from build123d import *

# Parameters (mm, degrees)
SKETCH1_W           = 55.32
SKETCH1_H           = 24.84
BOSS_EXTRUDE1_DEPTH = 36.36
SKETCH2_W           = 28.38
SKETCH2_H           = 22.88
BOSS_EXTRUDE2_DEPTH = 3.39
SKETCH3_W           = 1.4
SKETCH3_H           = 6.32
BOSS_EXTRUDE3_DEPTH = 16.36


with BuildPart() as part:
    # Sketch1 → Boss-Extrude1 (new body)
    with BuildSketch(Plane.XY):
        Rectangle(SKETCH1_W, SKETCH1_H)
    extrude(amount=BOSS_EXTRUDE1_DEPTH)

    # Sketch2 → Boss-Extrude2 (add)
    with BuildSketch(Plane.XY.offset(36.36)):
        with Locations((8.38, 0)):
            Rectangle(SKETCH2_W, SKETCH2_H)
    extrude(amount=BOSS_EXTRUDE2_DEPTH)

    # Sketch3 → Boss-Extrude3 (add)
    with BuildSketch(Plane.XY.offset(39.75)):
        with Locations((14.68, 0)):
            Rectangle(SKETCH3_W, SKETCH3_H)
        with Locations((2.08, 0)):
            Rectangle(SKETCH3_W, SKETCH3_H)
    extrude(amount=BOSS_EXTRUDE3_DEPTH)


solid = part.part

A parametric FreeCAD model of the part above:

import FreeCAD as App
import Part
import Sketcher
Q = App.Units.Quantity

doc = App.newDocument("Part")
body = doc.addObject("PartDesign::Body", "Body")

sketch1 = doc.addObject("Sketcher::SketchObject", "Sketch")
body.addObject(sketch1)
sketch1.AttachmentSupport = (doc.XY_Plane, [""])
sketch1.MapMode = "FlatFace"
sketch1.addGeometry([
    Part.LineSegment(App.Vector(-27.66, 12.42, 0), App.Vector(-27.66, -12.42, 0)),
    Part.LineSegment(App.Vector(-27.66, -12.42, 0), App.Vector(27.66, -12.42, 0)),
    Part.LineSegment(App.Vector(27.66, -12.42, 0), App.Vector(27.66, 12.42, 0)),
    Part.LineSegment(App.Vector(27.66, 12.42, 0), App.Vector(-27.66, 12.42, 0)),
], False)
sketch1.addConstraint([
    Sketcher.Constraint("Coincident", 0, 2, 1, 1),
    Sketcher.Constraint("Coincident", 1, 2, 2, 1),
    Sketcher.Constraint("Coincident", 2, 2, 3, 1),
    Sketcher.Constraint("Coincident", 3, 2, 0, 1),
    Sketcher.Constraint("Vertical", 0),
    Sketcher.Constraint("Horizontal", 1),
    Sketcher.Constraint("Vertical", 2),
    Sketcher.Constraint("Horizontal", 3),
    Sketcher.Constraint("Symmetric", 0, 2, 2, 2, -1, 1),
    Sketcher.Constraint("DistanceX", 1, 1, 1, 2, Q("55.32 mm")),
    Sketcher.Constraint("DistanceY", 0, 2, 0, 1, Q("24.84 mm")),
])
pad1 = doc.addObject("PartDesign::Pad", "Pad")
body.addObject(pad1)
pad1.Profile = sketch1
pad1.Length = 36.36

sketch2 = doc.addObject("Sketcher::SketchObject", "Sketch001")
body.addObject(sketch2)
sketch2.AttachmentSupport = (doc.XY_Plane, [""])
sketch2.MapMode = "FlatFace"
sketch2.AttachmentOffset = App.Placement(App.Vector(0, 0, 36.36), App.Rotation())
sketch2.addGeometry([
    Part.LineSegment(App.Vector(-5.81, 11.44, 0), App.Vector(-5.81, -11.44, 0)),
    Part.LineSegment(App.Vector(-5.81, -11.44, 0), App.Vector(22.57, -11.44, 0)),
    Part.LineSegment(App.Vector(22.57, -11.44, 0), App.Vector(22.57, 11.44, 0)),
    Part.LineSegment(App.Vector(22.57, 11.44, 0), App.Vector(-5.81, 11.44, 0)),
], False)
sketch2.addConstraint([
    Sketcher.Constraint("Coincident", 0, 2, 1, 1),
    Sketcher.Constraint("Coincident", 1, 2, 2, 1),
    Sketcher.Constraint("Coincident", 2, 2, 3, 1),
    Sketcher.Constraint("Coincident", 3, 2, 0, 1),
    Sketcher.Constraint("Vertical", 0),
    Sketcher.Constraint("Horizontal", 1),
    Sketcher.Constraint("Vertical", 2),
    Sketcher.Constraint("Horizontal", 3),
    Sketcher.Constraint("DistanceX", 1, 1, 1, 2, Q("28.38 mm")),
    Sketcher.Constraint("DistanceY", 0, 2, 0, 1, Q("22.88 mm")),
    Sketcher.Constraint("DistanceX", 0, 2, -1, 1, Q("5.81 mm")),
    Sketcher.Constraint("DistanceY", 0, 2, -1, 1, Q("11.44 mm")),
])
pad2 = doc.addObject("PartDesign::Pad", "Pad001")
body.addObject(pad2)
pad2.Profile = sketch2
pad2.Length = 3.39

sketch3 = doc.addObject("Sketcher::SketchObject", "Sketch002")
body.addObject(sketch3)
sketch3.AttachmentSupport = (doc.XY_Plane, [""])
sketch3.MapMode = "FlatFace"
sketch3.AttachmentOffset = App.Placement(App.Vector(0, 0, 39.75), App.Rotation())
sketch3.addGeometry([
    Part.LineSegment(App.Vector(13.98, 3.16, 0), App.Vector(13.98, -3.16, 0)),
    Part.LineSegment(App.Vector(13.98, -3.16, 0), App.Vector(15.38, -3.16, 0)),
    Part.LineSegment(App.Vector(15.38, -3.16, 0), App.Vector(15.38, 3.16, 0)),
    Part.LineSegment(App.Vector(15.38, 3.16, 0), App.Vector(13.98, 3.16, 0)),
    Part.LineSegment(App.Vector(1.38, 3.16, 0), App.Vector(1.38, -3.16, 0)),
    Part.LineSegment(App.Vector(1.38, -3.16, 0), App.Vector(2.78, -3.16, 0)),
    Part.LineSegment(App.Vector(2.78, -3.16, 0), App.Vector(2.78, 3.16, 0)),
    Part.LineSegment(App.Vector(2.78, 3.16, 0), App.Vector(1.38, 3.16, 0)),
], False)
sketch3.addConstraint([
    Sketcher.Constraint("Coincident", 0, 2, 1, 1),
    Sketcher.Constraint("Coincident", 1, 2, 2, 1),
    Sketcher.Constraint("Coincident", 2, 2, 3, 1),
    Sketcher.Constraint("Coincident", 3, 2, 0, 1),
    Sketcher.Constraint("Coincident", 4, 2, 5, 1),
    Sketcher.Constraint("Coincident", 5, 2, 6, 1),
    Sketcher.Constraint("Coincident", 6, 2, 7, 1),
    Sketcher.Constraint("Coincident", 7, 2, 4, 1),
    Sketcher.Constraint("Vertical", 0),
    Sketcher.Constraint("Horizontal", 1),
    Sketcher.Constraint("Vertical", 2),
    Sketcher.Constraint("Horizontal", 3),
    Sketcher.Constraint("Vertical", 4),
    Sketcher.Constraint("Horizontal", 5),
    Sketcher.Constraint("Vertical", 6),
    Sketcher.Constraint("Horizontal", 7),
    Sketcher.Constraint("Horizontal", 1, 2, 4, 2),
    Sketcher.Constraint("Horizontal", 3, 2, 6, 2),
    Sketcher.Constraint("Equal", 3, 5),
    Sketcher.Constraint("DistanceX", 1, 1, 1, 2, Q("1.4 mm")),
    Sketcher.Constraint("DistanceX", 4, 2, 1, 2, Q("14 mm")),
    Sketcher.Constraint("DistanceY", 0, 2, 0, 1, Q("6.32 mm")),
    Sketcher.Constraint("DistanceX", -1, 1, 0, 2, Q("13.98 mm")),
    Sketcher.Constraint("DistanceY", 0, 2, -1, 1, Q("3.16 mm")),
])
pad3 = doc.addObject("PartDesign::Pad", "Pad002")
body.addObject(pad3)
pad3.Profile = sketch3
pad3.Length = 16.36

doc.recompute()
